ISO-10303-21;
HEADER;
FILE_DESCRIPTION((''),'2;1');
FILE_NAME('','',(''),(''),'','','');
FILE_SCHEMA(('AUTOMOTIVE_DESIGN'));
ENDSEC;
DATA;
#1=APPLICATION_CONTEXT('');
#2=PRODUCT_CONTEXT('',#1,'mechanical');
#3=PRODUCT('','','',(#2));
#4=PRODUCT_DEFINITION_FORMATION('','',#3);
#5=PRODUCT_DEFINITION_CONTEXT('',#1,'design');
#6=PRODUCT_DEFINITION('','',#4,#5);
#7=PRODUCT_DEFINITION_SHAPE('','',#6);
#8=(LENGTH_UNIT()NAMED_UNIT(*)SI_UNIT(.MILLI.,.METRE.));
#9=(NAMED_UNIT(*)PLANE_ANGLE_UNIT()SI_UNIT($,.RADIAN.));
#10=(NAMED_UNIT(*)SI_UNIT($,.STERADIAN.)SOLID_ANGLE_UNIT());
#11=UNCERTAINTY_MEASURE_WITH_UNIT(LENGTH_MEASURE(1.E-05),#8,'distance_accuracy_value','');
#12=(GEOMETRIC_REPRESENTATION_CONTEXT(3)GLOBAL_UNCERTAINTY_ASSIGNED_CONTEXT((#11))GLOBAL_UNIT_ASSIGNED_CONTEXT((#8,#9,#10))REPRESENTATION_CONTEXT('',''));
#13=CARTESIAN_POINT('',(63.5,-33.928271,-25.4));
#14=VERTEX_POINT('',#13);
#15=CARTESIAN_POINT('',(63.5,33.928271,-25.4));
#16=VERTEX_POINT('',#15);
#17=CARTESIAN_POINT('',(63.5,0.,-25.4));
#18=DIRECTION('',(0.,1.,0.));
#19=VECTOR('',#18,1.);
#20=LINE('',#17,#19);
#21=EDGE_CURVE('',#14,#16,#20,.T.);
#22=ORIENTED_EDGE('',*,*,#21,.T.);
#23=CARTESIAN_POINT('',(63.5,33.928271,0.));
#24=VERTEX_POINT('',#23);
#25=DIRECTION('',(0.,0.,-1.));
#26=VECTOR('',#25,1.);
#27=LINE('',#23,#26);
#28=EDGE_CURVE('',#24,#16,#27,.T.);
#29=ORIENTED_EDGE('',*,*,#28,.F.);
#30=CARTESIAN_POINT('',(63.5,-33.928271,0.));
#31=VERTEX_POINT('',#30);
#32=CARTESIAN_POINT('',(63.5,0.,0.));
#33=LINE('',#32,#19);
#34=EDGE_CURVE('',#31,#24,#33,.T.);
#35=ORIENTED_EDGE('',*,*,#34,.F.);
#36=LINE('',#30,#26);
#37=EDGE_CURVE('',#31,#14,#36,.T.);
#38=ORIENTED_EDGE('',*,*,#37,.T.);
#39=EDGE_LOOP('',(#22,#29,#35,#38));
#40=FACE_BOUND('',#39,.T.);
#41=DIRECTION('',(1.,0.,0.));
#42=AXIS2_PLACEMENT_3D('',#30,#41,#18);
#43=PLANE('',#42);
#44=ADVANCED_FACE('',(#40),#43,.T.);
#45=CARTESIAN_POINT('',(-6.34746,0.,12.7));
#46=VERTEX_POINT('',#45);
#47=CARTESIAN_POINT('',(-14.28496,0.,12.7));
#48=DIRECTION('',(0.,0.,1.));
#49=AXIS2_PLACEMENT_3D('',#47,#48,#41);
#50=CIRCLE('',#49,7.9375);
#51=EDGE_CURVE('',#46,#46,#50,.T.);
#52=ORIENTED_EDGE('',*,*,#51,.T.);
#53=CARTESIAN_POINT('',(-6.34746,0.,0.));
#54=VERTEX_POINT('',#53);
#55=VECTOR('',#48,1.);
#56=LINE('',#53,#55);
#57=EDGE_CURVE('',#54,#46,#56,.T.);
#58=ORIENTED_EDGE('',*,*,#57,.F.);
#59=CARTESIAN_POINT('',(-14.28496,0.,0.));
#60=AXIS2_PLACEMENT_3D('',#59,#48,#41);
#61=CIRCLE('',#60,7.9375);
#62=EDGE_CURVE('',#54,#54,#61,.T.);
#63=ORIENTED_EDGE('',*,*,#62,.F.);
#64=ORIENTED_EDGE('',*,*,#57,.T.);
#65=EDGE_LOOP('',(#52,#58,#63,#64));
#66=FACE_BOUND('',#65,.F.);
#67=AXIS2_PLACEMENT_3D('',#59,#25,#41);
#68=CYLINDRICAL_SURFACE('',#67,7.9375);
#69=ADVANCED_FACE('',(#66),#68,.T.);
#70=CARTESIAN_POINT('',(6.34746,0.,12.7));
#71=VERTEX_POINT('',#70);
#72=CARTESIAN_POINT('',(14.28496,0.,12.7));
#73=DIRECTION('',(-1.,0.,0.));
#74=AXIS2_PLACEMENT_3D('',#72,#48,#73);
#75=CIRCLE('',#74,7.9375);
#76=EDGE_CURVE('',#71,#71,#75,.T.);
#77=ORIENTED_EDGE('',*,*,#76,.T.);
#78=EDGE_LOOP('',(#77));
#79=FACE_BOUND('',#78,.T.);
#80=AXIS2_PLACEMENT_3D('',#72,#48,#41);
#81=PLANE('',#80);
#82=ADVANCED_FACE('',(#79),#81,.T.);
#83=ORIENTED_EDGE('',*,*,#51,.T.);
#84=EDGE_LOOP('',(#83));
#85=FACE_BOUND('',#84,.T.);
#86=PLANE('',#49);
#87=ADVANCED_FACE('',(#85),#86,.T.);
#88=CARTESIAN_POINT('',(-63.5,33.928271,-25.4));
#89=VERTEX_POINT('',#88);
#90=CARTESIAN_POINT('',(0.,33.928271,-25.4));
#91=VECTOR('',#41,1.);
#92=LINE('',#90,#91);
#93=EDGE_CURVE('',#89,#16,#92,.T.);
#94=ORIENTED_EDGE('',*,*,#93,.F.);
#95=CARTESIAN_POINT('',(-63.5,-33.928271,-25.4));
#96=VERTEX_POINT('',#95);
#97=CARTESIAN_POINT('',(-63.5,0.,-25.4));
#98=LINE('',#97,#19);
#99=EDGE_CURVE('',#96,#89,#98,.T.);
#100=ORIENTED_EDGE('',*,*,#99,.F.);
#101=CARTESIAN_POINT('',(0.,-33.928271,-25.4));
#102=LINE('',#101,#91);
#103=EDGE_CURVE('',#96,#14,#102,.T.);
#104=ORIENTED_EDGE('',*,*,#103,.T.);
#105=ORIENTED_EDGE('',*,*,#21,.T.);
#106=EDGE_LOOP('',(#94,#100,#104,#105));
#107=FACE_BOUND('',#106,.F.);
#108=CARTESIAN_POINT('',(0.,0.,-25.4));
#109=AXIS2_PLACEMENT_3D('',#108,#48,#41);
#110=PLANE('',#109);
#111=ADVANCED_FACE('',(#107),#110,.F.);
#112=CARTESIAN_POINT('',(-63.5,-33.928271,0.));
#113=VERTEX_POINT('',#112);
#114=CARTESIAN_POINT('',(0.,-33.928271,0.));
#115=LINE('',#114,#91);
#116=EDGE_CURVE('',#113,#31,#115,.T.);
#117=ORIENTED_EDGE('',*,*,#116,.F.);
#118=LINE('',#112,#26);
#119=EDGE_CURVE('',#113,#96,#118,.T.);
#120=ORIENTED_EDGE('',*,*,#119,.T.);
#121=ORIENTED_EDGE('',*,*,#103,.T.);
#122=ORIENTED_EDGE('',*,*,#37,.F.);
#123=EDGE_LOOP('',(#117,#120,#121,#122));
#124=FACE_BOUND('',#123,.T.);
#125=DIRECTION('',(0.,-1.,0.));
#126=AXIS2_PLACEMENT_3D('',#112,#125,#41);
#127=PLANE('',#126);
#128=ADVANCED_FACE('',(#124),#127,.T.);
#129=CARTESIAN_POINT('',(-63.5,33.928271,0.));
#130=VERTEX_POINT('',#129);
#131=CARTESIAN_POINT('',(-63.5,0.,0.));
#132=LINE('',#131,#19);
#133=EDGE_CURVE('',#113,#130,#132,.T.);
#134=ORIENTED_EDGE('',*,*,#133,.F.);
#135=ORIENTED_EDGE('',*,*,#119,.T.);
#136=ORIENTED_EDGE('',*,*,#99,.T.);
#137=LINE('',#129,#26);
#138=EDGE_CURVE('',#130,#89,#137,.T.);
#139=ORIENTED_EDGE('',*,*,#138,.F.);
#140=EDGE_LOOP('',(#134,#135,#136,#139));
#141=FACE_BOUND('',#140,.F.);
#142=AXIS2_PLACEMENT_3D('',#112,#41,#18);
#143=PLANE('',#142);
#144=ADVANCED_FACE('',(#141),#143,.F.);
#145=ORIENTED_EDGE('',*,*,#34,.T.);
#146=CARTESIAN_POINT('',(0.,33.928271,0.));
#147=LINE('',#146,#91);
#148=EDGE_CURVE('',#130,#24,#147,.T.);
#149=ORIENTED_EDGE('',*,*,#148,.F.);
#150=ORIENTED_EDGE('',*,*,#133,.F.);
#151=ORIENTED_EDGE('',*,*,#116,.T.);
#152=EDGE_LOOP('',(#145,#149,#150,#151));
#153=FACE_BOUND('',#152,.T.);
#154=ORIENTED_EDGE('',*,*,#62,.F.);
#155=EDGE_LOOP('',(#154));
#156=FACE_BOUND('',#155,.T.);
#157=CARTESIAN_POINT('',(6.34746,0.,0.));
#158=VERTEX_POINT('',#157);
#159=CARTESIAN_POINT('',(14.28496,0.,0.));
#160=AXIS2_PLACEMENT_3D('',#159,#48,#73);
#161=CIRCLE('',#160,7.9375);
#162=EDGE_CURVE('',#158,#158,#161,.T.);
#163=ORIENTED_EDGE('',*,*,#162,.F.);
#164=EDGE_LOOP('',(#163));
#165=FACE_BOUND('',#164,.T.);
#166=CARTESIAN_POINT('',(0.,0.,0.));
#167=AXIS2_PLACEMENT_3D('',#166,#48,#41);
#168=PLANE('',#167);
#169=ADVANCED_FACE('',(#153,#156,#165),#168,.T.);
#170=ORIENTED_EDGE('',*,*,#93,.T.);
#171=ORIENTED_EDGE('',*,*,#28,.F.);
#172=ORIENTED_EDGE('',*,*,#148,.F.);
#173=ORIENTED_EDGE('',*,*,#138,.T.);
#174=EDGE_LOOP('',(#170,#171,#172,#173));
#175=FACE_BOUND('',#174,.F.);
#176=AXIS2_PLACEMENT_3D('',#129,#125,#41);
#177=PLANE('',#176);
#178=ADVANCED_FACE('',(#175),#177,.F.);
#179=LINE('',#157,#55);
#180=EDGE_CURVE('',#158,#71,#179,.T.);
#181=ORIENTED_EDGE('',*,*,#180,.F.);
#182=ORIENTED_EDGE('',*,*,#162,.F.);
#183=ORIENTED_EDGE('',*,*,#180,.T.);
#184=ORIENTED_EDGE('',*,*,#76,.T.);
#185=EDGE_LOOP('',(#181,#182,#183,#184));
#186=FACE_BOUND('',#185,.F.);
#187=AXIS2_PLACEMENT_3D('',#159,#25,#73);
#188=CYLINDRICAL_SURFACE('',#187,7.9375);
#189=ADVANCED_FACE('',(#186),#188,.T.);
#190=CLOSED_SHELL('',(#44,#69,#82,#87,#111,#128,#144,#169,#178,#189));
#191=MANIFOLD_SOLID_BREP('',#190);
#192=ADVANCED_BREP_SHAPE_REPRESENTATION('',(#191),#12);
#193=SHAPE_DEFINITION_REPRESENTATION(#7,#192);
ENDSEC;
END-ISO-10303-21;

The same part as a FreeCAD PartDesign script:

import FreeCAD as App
import Part
import Sketcher
Q = App.Units.Quantity

doc = App.newDocument("Part")
params = doc.addObject("Spreadsheet::Sheet", "Params")
for row, (alias, value) in enumerate([
    ("sketch1_width", "5 in"),
    ("pad1_length", "1 in"),
    ("sketch2_diameter", "0.625 in"),
    ("pad2_length", "0.5 in"),
], start=1):
    params.set(f"A{row}", alias)
    params.set(f"B{row}", "=" + value)
    params.setAlias(f"B{row}", alias)

body = doc.addObject("PartDesign::Body", "Body")

# Sketch on XY plane
sketch1 = body.newObject("Sketcher::SketchObject", "Sketch")
sketch1.AttachmentSupport = (doc.getObject("XY_Plane"), [""])
sketch1.MapMode = "FlatFace"
sketch1.addGeometry([
    Part.LineSegment(App.Vector(-64, 34, 0), App.Vector(-64, -34, 0)),
    Part.LineSegment(App.Vector(-64, -34, 0), App.Vector(64, -34, 0)),
    Part.LineSegment(App.Vector(64, -34, 0), App.Vector(64, 34, 0)),
    Part.LineSegment(App.Vector(64, 34, 0), App.Vector(-64, 34, 0)),
], False)
sketch1.addConstraint([
    Sketcher.Constraint("Coincident", 0, 2, 1, 1),
    Sketcher.Constraint("Coincident", 1, 2, 2, 1),
    Sketcher.Constraint("Coincident", 2, 2, 3, 1),
    Sketcher.Constraint("Coincident", 3, 2, 0, 1),
    Sketcher.Constraint("Vertical", 0),
    Sketcher.Constraint("Horizontal", 1),
    Sketcher.Constraint("Vertical", 2),
    Sketcher.Constraint("Horizontal", 3),
    Sketcher.Constraint("Symmetric", 0, 2, 2, 2, -1, 1),
    Sketcher.Constraint("DistanceX", 1, 1, 1, 2, Q("5 in")),
    Sketcher.Constraint("DistanceY", 0, 2, 0, 1, Q("67.856542 mm")),
])
sketch1.setExpression("Constraints[9]", "Params.sketch1_width")
pad1 = body.newObject("PartDesign::Pad", "Pad")
pad1.Profile = sketch1
pad1.setExpression("Length", "Params.pad1_length")
pad1.Reversed = True

# Sketch on XY plane
sketch2 = body.newObject("Sketcher::SketchObject", "Sketch001")
sketch2.AttachmentSupport = (doc.getObject("XY_Plane"), [""])
sketch2.MapMode = "FlatFace"
sketch2.addGeometry([
    Part.Circle(App.Vector(-14, 0, 0), App.Vector(0, 0, 1), 8),
    Part.Circle(App.Vector(14, 0, 0), App.Vector(0, 0, 1), 8),
], False)
sketch2.addConstraint([
    Sketcher.Constraint("Equal", 0, 1),
    Sketcher.Constraint("Symmetric", 0, 3, 1, 3, -1, 1),
    Sketcher.Constraint("PointOnObject", 0, 3, -1),
    Sketcher.Constraint("Diameter", 0, Q("0.625 in")),
    Sketcher.Constraint("DistanceX", 0, 3, -1, 1, Q("0.5624 in")),
])
sketch2.setExpression("Constraints[3]", "Params.sketch2_diameter")
pad2 = body.newObject("PartDesign::Pad", "Pad001")
pad2.Profile = sketch2
pad2.setExpression("Length", "Params.pad2_length")

doc.recompute()
